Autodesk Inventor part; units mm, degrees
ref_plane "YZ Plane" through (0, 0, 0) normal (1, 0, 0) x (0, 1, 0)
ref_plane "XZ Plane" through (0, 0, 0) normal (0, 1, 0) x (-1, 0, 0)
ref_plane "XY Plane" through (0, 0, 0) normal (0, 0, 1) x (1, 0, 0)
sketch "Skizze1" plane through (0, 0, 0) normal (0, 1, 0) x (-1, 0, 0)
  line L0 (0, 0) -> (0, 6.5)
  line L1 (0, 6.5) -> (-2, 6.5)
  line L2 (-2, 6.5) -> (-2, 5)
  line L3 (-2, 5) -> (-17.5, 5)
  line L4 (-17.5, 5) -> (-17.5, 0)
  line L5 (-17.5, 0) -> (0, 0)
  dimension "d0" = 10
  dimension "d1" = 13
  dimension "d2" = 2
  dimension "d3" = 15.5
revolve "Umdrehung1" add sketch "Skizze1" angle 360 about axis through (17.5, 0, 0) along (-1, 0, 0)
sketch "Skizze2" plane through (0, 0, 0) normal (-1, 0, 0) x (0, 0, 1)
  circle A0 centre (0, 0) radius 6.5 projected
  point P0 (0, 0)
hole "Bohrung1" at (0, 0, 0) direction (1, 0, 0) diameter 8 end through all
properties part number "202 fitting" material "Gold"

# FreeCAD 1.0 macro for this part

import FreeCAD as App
import Part
import Sketcher
from FreeCAD import Vector

doc = App.newDocument("Part")
body = doc.addObject("PartDesign::Body", "Body")

# Sketch on XZ plane
sketch1 = body.newObject("Sketcher::SketchObject", "Sketch")
sketch1.AttachmentSupport = (doc.getObject("XZ_Plane"), [""])
sketch1.MapMode = "FlatFace"
sketch1.addGeometry([
    Part.LineSegment(Vector(17.5, 0, 0), Vector(0, 0, 0)),  # 0
    Part.LineSegment(Vector(0, 0, 0), Vector(0, 6.5, 0)),  # 1
    Part.LineSegment(Vector(0, 6.5, 0), Vector(2, 6.5, 0)),  # 2
    Part.LineSegment(Vector(2, 6.5, 0), Vector(2, 5, 0)),  # 3
    Part.LineSegment(Vector(2, 5, 0), Vector(17.5, 5, 0)),  # 4
    Part.LineSegment(Vector(17.5, 5, 0), Vector(17.5, 0, 0)),  # 5
], False)
sketch1.addConstraint([
    Sketcher.Constraint("Coincident", 0, 2, 1, 1),
    Sketcher.Constraint("Coincident", 1, 2, 2, 1),
    Sketcher.Constraint("Coincident", 2, 2, 3, 1),
    Sketcher.Constraint("Coincident", 3, 2, 4, 1),
    Sketcher.Constraint("Coincident", 4, 2, 5, 1),
    Sketcher.Constraint("Coincident", 5, 2, 0, 1),
    Sketcher.Constraint("Horizontal", 0),
    Sketcher.Constraint("Vertical", 1),
    Sketcher.Constraint("Horizontal", 2),
    Sketcher.Constraint("Vertical", 3),
    Sketcher.Constraint("Horizontal", 4),
    Sketcher.Constraint("Vertical", 5),
    Sketcher.Constraint("Coincident", 0, 2, -1, 1),
    Sketcher.Constraint("DistanceX", 2, 1, 2, 2, 2.0),
    Sketcher.Constraint("DistanceX", 4, 1, 4, 2, 15.5),
    Sketcher.Constraint("DistanceY", 5, 2, 5, 1, 5.0),
    Sketcher.Constraint("DistanceY", 1, 1, 1, 2, 6.5),
])
revolution = body.newObject("PartDesign::Revolution", "Revolution")
revolution.Profile = sketch1
revolution.ReferenceAxis = (sketch1, ["H_Axis"])
revolution.Angle = 360

# Sketch on YZ plane
sketch2 = body.newObject("Sketcher::SketchObject", "Sketch001")
sketch2.AttachmentSupport = (doc.getObject("YZ_Plane"), [""])
sketch2.MapMode = "FlatFace"
sketch2.addGeometry(Part.Circle(Vector(0, 0, 0), Vector(0, 0, 1), 4), False)
sketch2.addConstraint([
    Sketcher.Constraint("Coincident", 0, 3, -1, 1),
    Sketcher.Constraint("Diameter", 0, 8.0),
])
doc.recompute()
hole = body.newObject("PartDesign::Hole", "Hole")
hole.Profile = sketch2
hole.ThreadType = "None"
hole.Diameter = 8
hole.DepthType = "ThroughAll"
hole.Reversed = True

doc.recompute()
